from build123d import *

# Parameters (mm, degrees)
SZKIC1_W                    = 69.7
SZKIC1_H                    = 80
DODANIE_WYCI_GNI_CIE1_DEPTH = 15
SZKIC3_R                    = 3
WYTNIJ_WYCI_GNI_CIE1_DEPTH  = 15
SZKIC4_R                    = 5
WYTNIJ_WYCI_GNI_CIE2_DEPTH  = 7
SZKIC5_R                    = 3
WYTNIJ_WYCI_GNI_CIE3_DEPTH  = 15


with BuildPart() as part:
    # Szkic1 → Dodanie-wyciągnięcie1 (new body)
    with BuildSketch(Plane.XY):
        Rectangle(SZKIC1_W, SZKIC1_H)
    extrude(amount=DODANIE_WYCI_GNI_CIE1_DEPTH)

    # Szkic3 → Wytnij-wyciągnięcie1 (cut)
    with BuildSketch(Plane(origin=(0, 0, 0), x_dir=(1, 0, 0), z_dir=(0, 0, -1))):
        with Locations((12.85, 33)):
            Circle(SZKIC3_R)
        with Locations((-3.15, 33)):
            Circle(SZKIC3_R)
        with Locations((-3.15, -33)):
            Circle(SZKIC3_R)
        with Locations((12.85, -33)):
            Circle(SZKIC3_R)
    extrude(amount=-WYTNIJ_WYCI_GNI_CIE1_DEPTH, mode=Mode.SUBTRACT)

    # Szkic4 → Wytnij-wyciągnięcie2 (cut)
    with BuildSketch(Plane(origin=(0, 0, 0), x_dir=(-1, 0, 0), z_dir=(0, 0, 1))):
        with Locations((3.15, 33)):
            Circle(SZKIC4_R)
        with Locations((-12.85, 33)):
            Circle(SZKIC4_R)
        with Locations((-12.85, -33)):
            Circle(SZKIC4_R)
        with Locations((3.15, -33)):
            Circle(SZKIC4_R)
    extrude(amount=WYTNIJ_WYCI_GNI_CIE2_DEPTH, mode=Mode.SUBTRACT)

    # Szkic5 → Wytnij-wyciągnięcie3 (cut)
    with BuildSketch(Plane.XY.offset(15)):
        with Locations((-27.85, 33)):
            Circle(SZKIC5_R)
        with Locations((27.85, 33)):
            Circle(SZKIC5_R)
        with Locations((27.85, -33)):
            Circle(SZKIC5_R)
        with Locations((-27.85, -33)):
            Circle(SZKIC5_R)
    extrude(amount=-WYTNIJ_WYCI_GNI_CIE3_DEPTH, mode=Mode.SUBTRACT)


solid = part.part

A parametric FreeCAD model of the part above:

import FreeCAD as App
import Part
import Sketcher

V = App.Vector


def add_polygon(sketch, points):
    """Adds a closed chain of lines whose ends are joined by coincident constraints."""
    first, n = sketch.GeometryCount, len(points)
    for a, b in zip(points, points[1:] + points[:1]):
        sketch.addGeometry(Part.LineSegment(App.Vector(*a, 0), App.Vector(*b, 0)), False)
    for i in range(n):
        sketch.addConstraint(Sketcher.Constraint("Coincident", first + i, 2, first + (i + 1) % n, 1))

doc = App.newDocument("Part")
body = doc.addObject("PartDesign::Body", "Body")

# Sketch on XY plane
sketch1 = body.newObject("Sketcher::SketchObject", "Sketch")
sketch1.AttachmentSupport = (doc.getObject("XY_Plane"), [""])
sketch1.MapMode = "FlatFace"
add_polygon(sketch1, [(-35, 40), (-35, -40), (35, -40), (35, 40)])  # lines 0-3
sketch1.addConstraint([
    Sketcher.Constraint("Vertical", 0),
    Sketcher.Constraint("Horizontal", 1),
    Sketcher.Constraint("Vertical", 2),
    Sketcher.Constraint("Horizontal", 3),
    Sketcher.Constraint("Symmetric", 0, 2, 2, 2, -1, 1),
    Sketcher.Constraint("DistanceY", 0, 2, 0, 1, 80.0),
    Sketcher.Constraint("DistanceX", 1, 1, 1, 2, 69.7),
])
pad1 = body.newObject("PartDesign::Pad", "Pad")
pad1.Profile = sketch1
pad1.Length = 15

# Sketch on XY plane
sketch2 = body.newObject("Sketcher::SketchObject", "Sketch001")
sketch2.AttachmentSupport = (doc.getObject("XY_Plane"), [""])
sketch2.MapMode = "FlatFace"
sketch2.addGeometry([
    Part.Circle(V(12.8, -33, 0), V(0, 0, 1), 3),
    Part.Circle(V(-3.1, -33, 0), V(0, 0, 1), 3),
    Part.Circle(V(-3.1, 33, 0), V(0, 0, 1), 3),
    Part.Circle(V(12.8, 33, 0), V(0, 0, 1), 3),
], False)
sketch2.addConstraint([
    Sketcher.Constraint("Equal", 0, 1),
    Sketcher.Constraint("Equal", 1, 2),
    Sketcher.Constraint("Equal", 2, 3),
    Sketcher.Constraint("Symmetric", 1, 3, 2, 3, -1),
    Sketcher.Constraint("Symmetric", 0, 3, 3, 3, -1),
    Sketcher.Constraint("Horizontal", 0, 3, 1, 3),
    Sketcher.Constraint("Diameter", 0, 6.0),
    Sketcher.Constraint("DistanceY", 0, 3, -1, 1, 33.0),
    Sketcher.Constraint("DistanceX", 1, 3, 0, 3, 16.0),
    Sketcher.Constraint("DistanceX", -1, 1, 0, 3, 12.85),
])
pocket1 = body.newObject("PartDesign::Pocket", "Pocket")
pocket1.Profile = sketch2
pocket1.Length = 15
pocket1.Reversed = True

# Sketch on XY plane
sketch3 = body.newObject("Sketcher::SketchObject", "Sketch002")
sketch3.AttachmentSupport = (doc.getObject("XY_Plane"), [""])
sketch3.MapMode = "FlatFace"
sketch3.addGeometry([
    Part.Circle(V(-3, -33, 0), V(0, 0, 1), 5),
    Part.Circle(V(13, -33, 0), V(0, 0, 1), 5),
    Part.Circle(V(13, 33, 0), V(0, 0, 1), 5),
    Part.Circle(V(-3, 33, 0), V(0, 0, 1), 5),
], False)
sketch3.addConstraint([
    Sketcher.Constraint("Equal", 0, 1),
    Sketcher.Constraint("Equal", 1, 2),
    Sketcher.Constraint("Equal", 2, 3),
    Sketcher.Constraint("Symmetric", 1, 3, 2, 3, -1),
    Sketcher.Constraint("Symmetric", 0, 3, 3, 3, -1),
    Sketcher.Constraint("Horizontal", 0, 3, 1, 3),
    Sketcher.Constraint("Diameter", 0, 10.0),
    Sketcher.Constraint("DistanceY", 0, 3, -1, 1, 33.0),
    Sketcher.Constraint("DistanceX", 0, 3, 1, 3, 16.0),
    Sketcher.Constraint("DistanceX", 0, 3, -1, 1, 3.15),
])
pocket2 = body.newObject("PartDesign::Pocket", "Pocket001")
pocket2.Profile = sketch3
pocket2.Length = 7
pocket2.Reversed = True

# Sketch on XY plane
sketch4 = body.newObject("Sketcher::SketchObject", "Sketch003")
sketch4.AttachmentSupport = (doc.getObject("XY_Plane"), [""])
sketch4.MapMode = "FlatFace"
sketch4.AttachmentOffset = App.Placement(V(0, 0, 15), App.Rotation())
sketch4.addGeometry([
    Part.Circle(V(-27.9, 33, 0), V(0, 0, 1), 3),
    Part.Circle(V(27.9, 33, 0), V(0, 0, 1), 3),
    Part.Circle(V(27.9, -33, 0), V(0, 0, 1), 3),
    Part.Circle(V(-27.9, -33, 0), V(0, 0, 1), 3),
], False)
sketch4.addConstraint([
    Sketcher.Constraint("Equal", 0, 1),
    Sketcher.Constraint("Equal", 1, 2),
    Sketcher.Constraint("Equal", 2, 3),
    Sketcher.Constraint("Symmetric", 0, 3, 2, 3, -1, 1),
    Sketcher.Constraint("Symmetric", 1, 3, 3, 3, -1, 1),
    Sketcher.Constraint("Symmetric", 0, 3, 1, 3, -2),
    Sketcher.Constraint("Diameter", 0, 6.0),
    Sketcher.Constraint("DistanceY", -1, 1, 0, 3, 33.0),
    Sketcher.Constraint("DistanceX", 0, 3, 1, 3, 55.7),
])
pocket3 = body.newObject("PartDesign::Pocket", "Pocket002")
pocket3.Profile = sketch4
pocket3.Length = 15

doc.recompute()
